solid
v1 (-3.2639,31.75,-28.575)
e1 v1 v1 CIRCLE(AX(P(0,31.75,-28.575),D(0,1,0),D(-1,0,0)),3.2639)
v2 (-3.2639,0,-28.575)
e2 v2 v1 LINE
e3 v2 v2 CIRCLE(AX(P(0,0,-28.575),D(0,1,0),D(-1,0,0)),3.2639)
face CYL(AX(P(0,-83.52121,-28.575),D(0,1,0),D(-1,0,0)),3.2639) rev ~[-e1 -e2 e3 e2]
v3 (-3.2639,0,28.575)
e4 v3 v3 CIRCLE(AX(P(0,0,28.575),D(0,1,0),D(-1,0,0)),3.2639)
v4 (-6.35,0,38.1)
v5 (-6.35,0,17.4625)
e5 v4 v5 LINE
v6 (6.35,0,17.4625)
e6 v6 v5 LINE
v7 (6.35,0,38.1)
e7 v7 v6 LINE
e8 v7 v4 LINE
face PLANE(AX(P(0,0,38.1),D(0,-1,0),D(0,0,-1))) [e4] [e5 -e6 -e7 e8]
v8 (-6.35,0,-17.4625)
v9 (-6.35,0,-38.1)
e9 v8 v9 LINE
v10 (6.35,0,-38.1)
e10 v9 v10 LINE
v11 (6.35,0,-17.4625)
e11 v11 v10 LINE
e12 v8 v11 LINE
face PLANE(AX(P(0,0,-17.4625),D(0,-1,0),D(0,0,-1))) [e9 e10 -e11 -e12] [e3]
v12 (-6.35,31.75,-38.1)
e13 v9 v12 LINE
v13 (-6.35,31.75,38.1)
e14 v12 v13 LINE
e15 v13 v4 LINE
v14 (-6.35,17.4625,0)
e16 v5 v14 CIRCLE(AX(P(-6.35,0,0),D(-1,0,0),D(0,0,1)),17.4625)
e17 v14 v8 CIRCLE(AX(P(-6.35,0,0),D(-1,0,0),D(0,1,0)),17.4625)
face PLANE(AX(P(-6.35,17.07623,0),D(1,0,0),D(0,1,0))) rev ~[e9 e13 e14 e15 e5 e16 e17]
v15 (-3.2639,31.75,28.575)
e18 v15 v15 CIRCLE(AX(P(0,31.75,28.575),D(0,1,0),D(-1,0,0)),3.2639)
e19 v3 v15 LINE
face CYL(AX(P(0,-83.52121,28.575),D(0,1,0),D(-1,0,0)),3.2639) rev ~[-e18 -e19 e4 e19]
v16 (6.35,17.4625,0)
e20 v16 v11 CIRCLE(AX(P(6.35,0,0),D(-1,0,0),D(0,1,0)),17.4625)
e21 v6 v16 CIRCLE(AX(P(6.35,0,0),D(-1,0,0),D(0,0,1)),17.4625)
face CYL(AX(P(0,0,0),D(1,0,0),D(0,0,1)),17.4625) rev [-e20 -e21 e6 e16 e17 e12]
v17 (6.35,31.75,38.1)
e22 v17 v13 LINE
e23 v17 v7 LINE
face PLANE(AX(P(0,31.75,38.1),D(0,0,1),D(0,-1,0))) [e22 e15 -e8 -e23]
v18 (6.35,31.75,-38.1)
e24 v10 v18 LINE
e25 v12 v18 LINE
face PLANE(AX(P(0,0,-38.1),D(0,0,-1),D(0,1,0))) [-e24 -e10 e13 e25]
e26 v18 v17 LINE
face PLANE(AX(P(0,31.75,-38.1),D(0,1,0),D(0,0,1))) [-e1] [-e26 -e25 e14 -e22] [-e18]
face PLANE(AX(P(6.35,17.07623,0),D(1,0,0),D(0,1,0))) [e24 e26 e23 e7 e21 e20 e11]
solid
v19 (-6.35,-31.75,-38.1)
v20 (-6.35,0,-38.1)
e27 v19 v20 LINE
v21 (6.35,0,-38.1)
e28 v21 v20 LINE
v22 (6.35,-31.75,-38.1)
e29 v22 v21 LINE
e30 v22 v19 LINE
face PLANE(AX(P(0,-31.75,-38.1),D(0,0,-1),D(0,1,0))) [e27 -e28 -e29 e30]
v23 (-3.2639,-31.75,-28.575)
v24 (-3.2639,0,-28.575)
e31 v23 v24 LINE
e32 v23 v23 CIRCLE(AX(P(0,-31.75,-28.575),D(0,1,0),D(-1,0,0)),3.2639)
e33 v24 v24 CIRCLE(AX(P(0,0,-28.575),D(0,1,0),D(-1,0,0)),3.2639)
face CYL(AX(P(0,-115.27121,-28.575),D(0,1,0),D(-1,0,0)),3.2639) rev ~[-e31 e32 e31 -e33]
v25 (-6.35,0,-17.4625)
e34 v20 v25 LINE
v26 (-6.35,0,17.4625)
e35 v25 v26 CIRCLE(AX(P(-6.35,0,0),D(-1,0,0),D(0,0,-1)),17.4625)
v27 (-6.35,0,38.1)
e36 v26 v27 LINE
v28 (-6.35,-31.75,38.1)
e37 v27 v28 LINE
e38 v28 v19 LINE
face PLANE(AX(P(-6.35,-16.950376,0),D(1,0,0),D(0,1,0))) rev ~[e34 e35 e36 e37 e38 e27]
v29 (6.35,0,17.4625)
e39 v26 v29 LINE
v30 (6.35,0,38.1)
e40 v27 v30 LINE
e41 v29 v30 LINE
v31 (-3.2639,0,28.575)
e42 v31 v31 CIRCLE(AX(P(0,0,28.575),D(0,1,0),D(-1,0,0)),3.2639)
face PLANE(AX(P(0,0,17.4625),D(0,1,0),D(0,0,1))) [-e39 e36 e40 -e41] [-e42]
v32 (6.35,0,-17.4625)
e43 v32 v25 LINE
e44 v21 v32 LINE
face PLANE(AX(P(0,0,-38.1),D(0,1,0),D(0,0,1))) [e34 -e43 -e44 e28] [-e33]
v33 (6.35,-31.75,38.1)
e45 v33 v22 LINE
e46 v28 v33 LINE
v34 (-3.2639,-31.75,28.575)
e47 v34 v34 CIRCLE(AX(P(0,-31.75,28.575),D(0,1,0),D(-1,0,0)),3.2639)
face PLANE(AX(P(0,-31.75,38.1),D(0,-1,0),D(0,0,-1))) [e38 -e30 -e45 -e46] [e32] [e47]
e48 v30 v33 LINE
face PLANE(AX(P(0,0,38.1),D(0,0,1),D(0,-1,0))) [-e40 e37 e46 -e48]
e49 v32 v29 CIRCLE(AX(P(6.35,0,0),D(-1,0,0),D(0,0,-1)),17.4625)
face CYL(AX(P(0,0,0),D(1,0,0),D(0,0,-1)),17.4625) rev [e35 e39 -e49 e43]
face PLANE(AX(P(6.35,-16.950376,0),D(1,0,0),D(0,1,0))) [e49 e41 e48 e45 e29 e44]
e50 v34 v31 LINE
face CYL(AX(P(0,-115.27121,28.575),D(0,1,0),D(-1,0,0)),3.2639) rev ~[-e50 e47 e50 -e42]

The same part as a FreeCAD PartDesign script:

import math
import FreeCAD as App
import Part
import Sketcher
from FreeCAD import Vector
Q = App.Units.Quantity

doc = App.newDocument("Part")
params = doc.addObject("Spreadsheet::Sheet", "Params")
for row, (alias, value) in enumerate([
    ("sketch1_height", "3 in"),
    ("sketch1_radius", "0.6875 in"),
    ("sketch1_width", "1.25 in"),
    ("pad1_length", "0.5 in"),
    ("sketch2_diameter", "0.257 in"),
    ("hole_diameter", "0.257 in"),
    ("sketch3_height", "3 in"),
    ("sketch3_radius", "0.6875 in"),
    ("sketch3_width", "1.25 in"),
    ("pad2_length", "0.5 in"),
    ("sketch4_diameter", "0.257 in"),
    ("hole2_diameter", "0.257 in"),
], start=1):
    params.set(f"A{row}", alias)
    params.set(f"B{row}", "=" + value)
    params.setAlias(f"B{row}", alias)

body = doc.addObject("PartDesign::Body", "Body")

# Sketch on YZ plane
sketch1 = doc.addObject("Sketcher::SketchObject", "Sketch")
body.addObject(sketch1)
sketch1.AttachmentSupport = (doc.YZ_Plane, [""])
sketch1.MapMode = "FlatFace"
sketch1.addGeometry(Part.ArcOfCircle(Part.Circle(Vector(0, 0, 0), Vector(0, 0, 1), 17), math.radians(0), math.radians(90)), False)
sketch1.addGeometry(Part.ArcOfCircle(Part.Circle(Vector(0, 0, 0), Vector(0, 0, 1), 17), math.radians(-90), math.radians(0)), False)
sketch1.addGeometry(Part.LineSegment(Vector(0, -17, 0), Vector(0, -38, 0)), False)
sketch1.addGeometry(Part.LineSegment(Vector(0, -38, 0), Vector(32, -38, 0)), False)
sketch1.addGeometry(Part.LineSegment(Vector(32, -38, 0), Vector(32, 38, 0)), False)
sketch1.addGeometry(Part.LineSegment(Vector(32, 38, 0), Vector(0, 38, 0)), False)
sketch1.addGeometry(Part.LineSegment(Vector(0, 38, 0), Vector(0, 17, 0)), False)
sketch1.addConstraint(Sketcher.Constraint("Tangent", 0, 1, 1, 2))
sketch1.addConstraint(Sketcher.Constraint("Coincident", 1, 1, 2, 1))
sketch1.addConstraint(Sketcher.Constraint("Coincident", 2, 2, 3, 1))
sketch1.addConstraint(Sketcher.Constraint("Coincident", 3, 2, 4, 1))
sketch1.addConstraint(Sketcher.Constraint("Coincident", 4, 2, 5, 1))
sketch1.addConstraint(Sketcher.Constraint("Coincident", 5, 2, 6, 1))
sketch1.addConstraint(Sketcher.Constraint("Coincident", 6, 2, 0, 2))
sketch1.addConstraint(Sketcher.Constraint("Vertical", 2))
sketch1.addConstraint(Sketcher.Constraint("Horizontal", 3))
sketch1.addConstraint(Sketcher.Constraint("Vertical", 4))
sketch1.addConstraint(Sketcher.Constraint("Horizontal", 5))
sketch1.addConstraint(Sketcher.Constraint("Vertical", 6))
sketch1.addConstraint(Sketcher.Constraint("Coincident", 0, 3, -1, 1))
sketch1.addConstraint(Sketcher.Constraint("Equal", 0, 1))
sketch1.addConstraint(Sketcher.Constraint("Symmetric", 2, 2, 5, 2, -1, 1))
sketch1.addConstraint(Sketcher.Constraint("PointOnObject", 0, 1, -1))
sketch1.addConstraint(Sketcher.Constraint("PointOnObject", 1, 1, -2))
sketch1.addConstraint(Sketcher.Constraint("DistanceY", 4, 1, 4, 2, Q("3 in")))
sketch1.addConstraint(Sketcher.Constraint("Radius", 0, Q("0.6875 in")))
sketch1.addConstraint(Sketcher.Constraint("DistanceX", 3, 1, 3, 2, Q("1.25 in")))
sketch1.setExpression("Constraints[17]", "Params.sketch1_height")
sketch1.setExpression("Constraints[18]", "Params.sketch1_radius")
sketch1.setExpression("Constraints[19]", "Params.sketch1_width")
pad1 = doc.addObject("PartDesign::Pad", "Pad")
body.addObject(pad1)
pad1.Profile = sketch1
pad1.setExpression("Length", "Params.pad1_length")
pad1.Midplane = True

# Sketch on XZ plane
sketch2 = doc.addObject("Sketcher::SketchObject", "Sketch001")
body.addObject(sketch2)
sketch2.AttachmentSupport = (doc.XZ_Plane, [""])
sketch2.MapMode = "FlatFace"
sketch2.addGeometry(Part.Circle(Vector(0, 28.6, 0), Vector(0, 0, 1), 3.3), False)
sketch2.addGeometry(Part.Circle(Vector(0, -28.6, 0), Vector(0, 0, 1), 3.3), False)
sketch2.addConstraint(Sketcher.Constraint("Equal", 0, 1))
sketch2.addConstraint(Sketcher.Constraint("Symmetric", 0, 3, 1, 3, -1, 1))
sketch2.addConstraint(Sketcher.Constraint("PointOnObject", 0, 3, -2))
sketch2.addConstraint(Sketcher.Constraint("Diameter", 0, Q("0.257 in")))
sketch2.addConstraint(Sketcher.Constraint("DistanceY", 1, 3, 0, 3, Q("2.25 in")))
sketch2.setExpression("Constraints[3]", "Params.sketch2_diameter")
doc.recompute()
hole = doc.addObject("PartDesign::Hole", "Hole")
body.addObject(hole)
hole.Profile = sketch2
hole.ThreadType = "None"
hole.setExpression("Diameter", "Params.hole_diameter")
hole.DepthType = "ThroughAll"
body2 = doc.addObject("PartDesign::Body", "Body001")

# Sketch on YZ plane
sketch3 = doc.addObject("Sketcher::SketchObject", "Sketch002")
body2.addObject(sketch3)
sketch3.AttachmentSupport = (doc.getObject("YZ_Plane001"), [""])
sketch3.MapMode = "FlatFace"
sketch3.addGeometry(Part.ArcOfCircle(Part.Circle(Vector(0, 0, 0), Vector(0, 0, 1), 17), math.radians(90), math.radians(270)), False)
sketch3.addGeometry(Part.LineSegment(Vector(0, 17, 0), Vector(0, 38, 0)), False)
sketch3.addGeometry(Part.LineSegment(Vector(0, 38, 0), Vector(-32, 38, 0)), False)
sketch3.addGeometry(Part.LineSegment(Vector(-32, 38, 0), Vector(-32, -38, 0)), False)
sketch3.addGeometry(Part.LineSegment(Vector(-32, -38, 0), Vector(0, -38, 0)), False)
sketch3.addGeometry(Part.LineSegment(Vector(0, -38, 0), Vector(0, -17, 0)), False)
sketch3.addConstraint(Sketcher.Constraint("Coincident", 0, 1, 1, 1))
sketch3.addConstraint(Sketcher.Constraint("Coincident", 1, 2, 2, 1))
sketch3.addConstraint(Sketcher.Constraint("Coincident", 2, 2, 3, 1))
sketch3.addConstraint(Sketcher.Constraint("Coincident", 3, 2, 4, 1))
sketch3.addConstraint(Sketcher.Constraint("Coincident", 4, 2, 5, 1))
sketch3.addConstraint(Sketcher.Constraint("Coincident", 5, 2, 0, 2))
sketch3.addConstraint(Sketcher.Constraint("Vertical", 1))
sketch3.addConstraint(Sketcher.Constraint("Horizontal", 2))
sketch3.addConstraint(Sketcher.Constraint("Vertical", 3))
sketch3.addConstraint(Sketcher.Constraint("Horizontal", 4))
sketch3.addConstraint(Sketcher.Constraint("Vertical", 5))
sketch3.addConstraint(Sketcher.Constraint("Coincident", 0, 3, -1, 1))
sketch3.addConstraint(Sketcher.Constraint("Symmetric", 1, 2, 4, 2, -1, 1))
sketch3.addConstraint(Sketcher.Constraint("PointOnObject", 0, 1, -2))
sketch3.addConstraint(Sketcher.Constraint("DistanceY", 3, 2, 3, 1, Q("3 in")))
sketch3.addConstraint(Sketcher.Constraint("Radius", 0, Q("0.6875 in")))
sketch3.addConstraint(Sketcher.Constraint("DistanceX", 2, 2, 2, 1, Q("1.25 in")))
sketch3.setExpression("Constraints[14]", "Params.sketch3_height")
sketch3.setExpression("Constraints[15]", "Params.sketch3_radius")
sketch3.setExpression("Constraints[16]", "Params.sketch3_width")
pad2 = doc.addObject("PartDesign::Pad", "Pad001")
body2.addObject(pad2)
pad2.Profile = sketch3
pad2.setExpression("Length", "Params.pad2_length")
pad2.Midplane = True

# Sketch on XZ plane
sketch4 = doc.addObject("Sketcher::SketchObject", "Sketch003")
body2.addObject(sketch4)
sketch4.AttachmentSupport = (doc.getObject("XZ_Plane001"), [""])
sketch4.MapMode = "FlatFace"
sketch4.AttachmentOffset = App.Placement(Vector(0, 0, 1.25 * 25.4), App.Rotation())
sketch4.addGeometry(Part.Circle(Vector(0, 28.6, 0), Vector(0, 0, 1), 3.3), False)
sketch4.addGeometry(Part.Circle(Vector(0, -28.6, 0), Vector(0, 0, 1), 3.3), False)
sketch4.addConstraint(Sketcher.Constraint("Equal", 0, 1))
sketch4.addConstraint(Sketcher.Constraint("Symmetric", 0, 3, 1, 3, -1, 1))
sketch4.addConstraint(Sketcher.Constraint("PointOnObject", 0, 3, -2))
sketch4.addConstraint(Sketcher.Constraint("Diameter", 0, Q("0.257 in")))
sketch4.addConstraint(Sketcher.Constraint("DistanceY", 1, 3, 0, 3, Q("2.25 in")))
sketch4.setExpression("Constraints[3]", "Params.sketch4_diameter")
doc.recompute()
hole2 = doc.addObject("PartDesign::Hole", "Hole001")
body2.addObject(hole2)
hole2.Profile = sketch4
hole2.ThreadType = "None"
hole2.setExpression("Diameter", "Params.hole2_diameter")
hole2.DepthType = "ThroughAll"

doc.recompute()
